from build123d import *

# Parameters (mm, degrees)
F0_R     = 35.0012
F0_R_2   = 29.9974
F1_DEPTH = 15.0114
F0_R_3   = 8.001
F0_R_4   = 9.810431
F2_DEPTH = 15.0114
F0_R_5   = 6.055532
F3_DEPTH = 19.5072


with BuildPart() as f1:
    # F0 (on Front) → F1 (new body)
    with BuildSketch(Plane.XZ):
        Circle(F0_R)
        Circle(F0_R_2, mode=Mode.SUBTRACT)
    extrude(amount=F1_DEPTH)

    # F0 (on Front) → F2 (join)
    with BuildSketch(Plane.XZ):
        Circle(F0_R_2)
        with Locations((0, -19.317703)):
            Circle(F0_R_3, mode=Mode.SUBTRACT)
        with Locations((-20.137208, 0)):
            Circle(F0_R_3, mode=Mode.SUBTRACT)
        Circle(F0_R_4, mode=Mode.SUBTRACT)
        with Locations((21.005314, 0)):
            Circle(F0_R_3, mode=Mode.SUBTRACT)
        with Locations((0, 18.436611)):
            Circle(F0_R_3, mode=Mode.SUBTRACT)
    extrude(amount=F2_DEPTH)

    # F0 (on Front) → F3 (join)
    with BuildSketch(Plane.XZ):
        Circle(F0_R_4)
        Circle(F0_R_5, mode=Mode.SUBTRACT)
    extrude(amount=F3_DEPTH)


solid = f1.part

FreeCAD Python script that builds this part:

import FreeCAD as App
import Part
import Sketcher
from FreeCAD import Vector
Q = App.Units.Quantity

doc = App.newDocument("Part")
body = doc.addObject("PartDesign::Body", "Body")

# Sketch on XZ plane
sketch1 = body.newObject("Sketcher::SketchObject", "Sketch")
sketch1.AttachmentSupport = (doc.getObject("XZ_Plane"), [""])
sketch1.MapMode = "FlatFace"
sketch1.addGeometry([
    Part.Circle(Vector(0, 0, 0), Vector(0, 0, 1), 35),
    Part.Circle(Vector(0, 0, 0), Vector(0, 0, 1), 30),
], False)
sketch1.addConstraint([
    Sketcher.Constraint("Coincident", 0, 3, -1, 1),
    Sketcher.Constraint("Coincident", 1, 3, -1, 1),
    Sketcher.Constraint("Diameter", 0, Q("2.756 in")),
    Sketcher.Constraint("Diameter", 1, Q("2.362 in")),
])
pad1 = body.newObject("PartDesign::Pad", "Pad")
pad1.Profile = sketch1
pad1.Length = Q("0.591 in")

# Sketch on XZ plane
sketch2 = body.newObject("Sketcher::SketchObject", "Sketch001")
sketch2.AttachmentSupport = (doc.getObject("XZ_Plane"), [""])
sketch2.MapMode = "FlatFace"
sketch2.addGeometry([
    Part.Circle(Vector(0, 0, 0), Vector(0, 0, 1), 30),  # 0
    Part.Circle(Vector(0, -19, 0), Vector(0, 0, 1), 8),  # 1
    Part.Circle(Vector(-20, 0, 0), Vector(0, 0, 1), 8),  # 2
    Part.Circle(Vector(0, 0, 0), Vector(0, 0, 1), 10),  # 3
    Part.Circle(Vector(0, 18, 0), Vector(0, 0, 1), 8),  # 4
    Part.Circle(Vector(21, 0, 0), Vector(0, 0, 1), 8),  # 5
], False)
sketch2.addConstraint([
    Sketcher.Constraint("Coincident", 0, 3, -1, 1),
    Sketcher.Constraint("Coincident", 3, 3, -1, 1),
    Sketcher.Constraint("Equal", 1, 2),
    Sketcher.Constraint("Equal", 2, 4),
    Sketcher.Constraint("Equal", 4, 5),
    Sketcher.Constraint("PointOnObject", 1, 3, -2),
    Sketcher.Constraint("PointOnObject", 2, 3, -1),
    Sketcher.Constraint("PointOnObject", 4, 3, -2),
    Sketcher.Constraint("PointOnObject", 5, 3, -1),
    Sketcher.Constraint("Diameter", 1, Q("0.63 in")),
    Sketcher.Constraint("Diameter", 0, Q("2.362 in")),
    Sketcher.Constraint("Diameter", 3, Q("19.620862 mm")),
    Sketcher.Constraint("DistanceX", 2, 3, -1, 1, Q("20.137208 mm")),
    Sketcher.Constraint("DistanceY", -1, 1, 4, 3, Q("18.436611 mm")),
    Sketcher.Constraint("DistanceY", 1, 3, -1, 1, Q("19.317703 mm")),
    Sketcher.Constraint("DistanceX", -1, 1, 5, 3, Q("21.005314 mm")),
])
pad2 = body.newObject("PartDesign::Pad", "Pad001")
pad2.Profile = sketch2
pad2.Length = Q("0.591 in")

# Sketch on XZ plane
sketch3 = body.newObject("Sketcher::SketchObject", "Sketch002")
sketch3.AttachmentSupport = (doc.getObject("XZ_Plane"), [""])
sketch3.MapMode = "FlatFace"
sketch3.addGeometry([
    Part.Circle(Vector(0, 0, 0), Vector(0, 0, 1), 10),
    Part.Circle(Vector(0, 0, 0), Vector(0, 0, 1), 6),
], False)
sketch3.addConstraint([
    Sketcher.Constraint("Coincident", 0, 3, -1, 1),
    Sketcher.Constraint("Coincident", 1, 3, -1, 1),
    Sketcher.Constraint("Diameter", 0, Q("19.620862 mm")),
    Sketcher.Constraint("Diameter", 1, Q("12.111064 mm")),
])
pad3 = body.newObject("PartDesign::Pad", "Pad002")
pad3.Profile = sketch3
pad3.Length = Q("0.768 in")

doc.recompute()
